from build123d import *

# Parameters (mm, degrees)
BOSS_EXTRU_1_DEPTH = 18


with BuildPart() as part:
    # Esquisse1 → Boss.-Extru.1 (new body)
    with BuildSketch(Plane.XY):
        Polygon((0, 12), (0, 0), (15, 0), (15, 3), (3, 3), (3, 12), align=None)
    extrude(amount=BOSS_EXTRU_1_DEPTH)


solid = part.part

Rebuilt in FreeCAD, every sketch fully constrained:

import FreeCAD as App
import Part
import Sketcher
Q = App.Units.Quantity

doc = App.newDocument("Part")
body = doc.addObject("PartDesign::Body", "Body")

# Sketch on XY plane
sketch1 = body.newObject("Sketcher::SketchObject", "Sketch")
sketch1.AttachmentSupport = (doc.getObject("XY_Plane"), [""])
sketch1.MapMode = "FlatFace"
sketch1.addGeometry(Part.LineSegment(App.Vector(0, 12, 0), App.Vector(0, 0, 0)), False)
sketch1.addGeometry(Part.LineSegment(App.Vector(0, 0, 0), App.Vector(15, 0, 0)), False)
sketch1.addGeometry(Part.LineSegment(App.Vector(15, 0, 0), App.Vector(15, 3, 0)), False)
sketch1.addGeometry(Part.LineSegment(App.Vector(15, 3, 0), App.Vector(3, 3, 0)), False)
sketch1.addGeometry(Part.LineSegment(App.Vector(3, 3, 0), App.Vector(3, 12, 0)), False)
sketch1.addGeometry(Part.LineSegment(App.Vector(3, 12, 0), App.Vector(0, 12, 0)), False)
sketch1.addConstraint(Sketcher.Constraint("Coincident", 0, 2, 1, 1))
sketch1.addConstraint(Sketcher.Constraint("Coincident", 1, 2, 2, 1))
sketch1.addConstraint(Sketcher.Constraint("Coincident", 2, 2, 3, 1))
sketch1.addConstraint(Sketcher.Constraint("Coincident", 3, 2, 4, 1))
sketch1.addConstraint(Sketcher.Constraint("Coincident", 4, 2, 5, 1))
sketch1.addConstraint(Sketcher.Constraint("Coincident", 5, 2, 0, 1))
sketch1.addConstraint(Sketcher.Constraint("Vertical", 0))
sketch1.addConstraint(Sketcher.Constraint("Horizontal", 1))
sketch1.addConstraint(Sketcher.Constraint("Vertical", 2))
sketch1.addConstraint(Sketcher.Constraint("Horizontal", 3))
sketch1.addConstraint(Sketcher.Constraint("Vertical", 4))
sketch1.addConstraint(Sketcher.Constraint("Horizontal", 5))
sketch1.addConstraint(Sketcher.Constraint("Coincident", 0, 2, -1, 1))
sketch1.addConstraint(Sketcher.Constraint("Equal", 3, 0))
sketch1.addConstraint(Sketcher.Constraint("Equal", 5, 2))
sketch1.addConstraint(Sketcher.Constraint("DistanceX", 1, 1, 1, 2, Q("15 mm")))
sketch1.addConstraint(Sketcher.Constraint("DistanceX", 3, 2, 3, 1, Q("12 mm")))
pad1 = body.newObject("PartDesign::Pad", "Pad")
pad1.Profile = sketch1
pad1.Length = 18

doc.recompute()
